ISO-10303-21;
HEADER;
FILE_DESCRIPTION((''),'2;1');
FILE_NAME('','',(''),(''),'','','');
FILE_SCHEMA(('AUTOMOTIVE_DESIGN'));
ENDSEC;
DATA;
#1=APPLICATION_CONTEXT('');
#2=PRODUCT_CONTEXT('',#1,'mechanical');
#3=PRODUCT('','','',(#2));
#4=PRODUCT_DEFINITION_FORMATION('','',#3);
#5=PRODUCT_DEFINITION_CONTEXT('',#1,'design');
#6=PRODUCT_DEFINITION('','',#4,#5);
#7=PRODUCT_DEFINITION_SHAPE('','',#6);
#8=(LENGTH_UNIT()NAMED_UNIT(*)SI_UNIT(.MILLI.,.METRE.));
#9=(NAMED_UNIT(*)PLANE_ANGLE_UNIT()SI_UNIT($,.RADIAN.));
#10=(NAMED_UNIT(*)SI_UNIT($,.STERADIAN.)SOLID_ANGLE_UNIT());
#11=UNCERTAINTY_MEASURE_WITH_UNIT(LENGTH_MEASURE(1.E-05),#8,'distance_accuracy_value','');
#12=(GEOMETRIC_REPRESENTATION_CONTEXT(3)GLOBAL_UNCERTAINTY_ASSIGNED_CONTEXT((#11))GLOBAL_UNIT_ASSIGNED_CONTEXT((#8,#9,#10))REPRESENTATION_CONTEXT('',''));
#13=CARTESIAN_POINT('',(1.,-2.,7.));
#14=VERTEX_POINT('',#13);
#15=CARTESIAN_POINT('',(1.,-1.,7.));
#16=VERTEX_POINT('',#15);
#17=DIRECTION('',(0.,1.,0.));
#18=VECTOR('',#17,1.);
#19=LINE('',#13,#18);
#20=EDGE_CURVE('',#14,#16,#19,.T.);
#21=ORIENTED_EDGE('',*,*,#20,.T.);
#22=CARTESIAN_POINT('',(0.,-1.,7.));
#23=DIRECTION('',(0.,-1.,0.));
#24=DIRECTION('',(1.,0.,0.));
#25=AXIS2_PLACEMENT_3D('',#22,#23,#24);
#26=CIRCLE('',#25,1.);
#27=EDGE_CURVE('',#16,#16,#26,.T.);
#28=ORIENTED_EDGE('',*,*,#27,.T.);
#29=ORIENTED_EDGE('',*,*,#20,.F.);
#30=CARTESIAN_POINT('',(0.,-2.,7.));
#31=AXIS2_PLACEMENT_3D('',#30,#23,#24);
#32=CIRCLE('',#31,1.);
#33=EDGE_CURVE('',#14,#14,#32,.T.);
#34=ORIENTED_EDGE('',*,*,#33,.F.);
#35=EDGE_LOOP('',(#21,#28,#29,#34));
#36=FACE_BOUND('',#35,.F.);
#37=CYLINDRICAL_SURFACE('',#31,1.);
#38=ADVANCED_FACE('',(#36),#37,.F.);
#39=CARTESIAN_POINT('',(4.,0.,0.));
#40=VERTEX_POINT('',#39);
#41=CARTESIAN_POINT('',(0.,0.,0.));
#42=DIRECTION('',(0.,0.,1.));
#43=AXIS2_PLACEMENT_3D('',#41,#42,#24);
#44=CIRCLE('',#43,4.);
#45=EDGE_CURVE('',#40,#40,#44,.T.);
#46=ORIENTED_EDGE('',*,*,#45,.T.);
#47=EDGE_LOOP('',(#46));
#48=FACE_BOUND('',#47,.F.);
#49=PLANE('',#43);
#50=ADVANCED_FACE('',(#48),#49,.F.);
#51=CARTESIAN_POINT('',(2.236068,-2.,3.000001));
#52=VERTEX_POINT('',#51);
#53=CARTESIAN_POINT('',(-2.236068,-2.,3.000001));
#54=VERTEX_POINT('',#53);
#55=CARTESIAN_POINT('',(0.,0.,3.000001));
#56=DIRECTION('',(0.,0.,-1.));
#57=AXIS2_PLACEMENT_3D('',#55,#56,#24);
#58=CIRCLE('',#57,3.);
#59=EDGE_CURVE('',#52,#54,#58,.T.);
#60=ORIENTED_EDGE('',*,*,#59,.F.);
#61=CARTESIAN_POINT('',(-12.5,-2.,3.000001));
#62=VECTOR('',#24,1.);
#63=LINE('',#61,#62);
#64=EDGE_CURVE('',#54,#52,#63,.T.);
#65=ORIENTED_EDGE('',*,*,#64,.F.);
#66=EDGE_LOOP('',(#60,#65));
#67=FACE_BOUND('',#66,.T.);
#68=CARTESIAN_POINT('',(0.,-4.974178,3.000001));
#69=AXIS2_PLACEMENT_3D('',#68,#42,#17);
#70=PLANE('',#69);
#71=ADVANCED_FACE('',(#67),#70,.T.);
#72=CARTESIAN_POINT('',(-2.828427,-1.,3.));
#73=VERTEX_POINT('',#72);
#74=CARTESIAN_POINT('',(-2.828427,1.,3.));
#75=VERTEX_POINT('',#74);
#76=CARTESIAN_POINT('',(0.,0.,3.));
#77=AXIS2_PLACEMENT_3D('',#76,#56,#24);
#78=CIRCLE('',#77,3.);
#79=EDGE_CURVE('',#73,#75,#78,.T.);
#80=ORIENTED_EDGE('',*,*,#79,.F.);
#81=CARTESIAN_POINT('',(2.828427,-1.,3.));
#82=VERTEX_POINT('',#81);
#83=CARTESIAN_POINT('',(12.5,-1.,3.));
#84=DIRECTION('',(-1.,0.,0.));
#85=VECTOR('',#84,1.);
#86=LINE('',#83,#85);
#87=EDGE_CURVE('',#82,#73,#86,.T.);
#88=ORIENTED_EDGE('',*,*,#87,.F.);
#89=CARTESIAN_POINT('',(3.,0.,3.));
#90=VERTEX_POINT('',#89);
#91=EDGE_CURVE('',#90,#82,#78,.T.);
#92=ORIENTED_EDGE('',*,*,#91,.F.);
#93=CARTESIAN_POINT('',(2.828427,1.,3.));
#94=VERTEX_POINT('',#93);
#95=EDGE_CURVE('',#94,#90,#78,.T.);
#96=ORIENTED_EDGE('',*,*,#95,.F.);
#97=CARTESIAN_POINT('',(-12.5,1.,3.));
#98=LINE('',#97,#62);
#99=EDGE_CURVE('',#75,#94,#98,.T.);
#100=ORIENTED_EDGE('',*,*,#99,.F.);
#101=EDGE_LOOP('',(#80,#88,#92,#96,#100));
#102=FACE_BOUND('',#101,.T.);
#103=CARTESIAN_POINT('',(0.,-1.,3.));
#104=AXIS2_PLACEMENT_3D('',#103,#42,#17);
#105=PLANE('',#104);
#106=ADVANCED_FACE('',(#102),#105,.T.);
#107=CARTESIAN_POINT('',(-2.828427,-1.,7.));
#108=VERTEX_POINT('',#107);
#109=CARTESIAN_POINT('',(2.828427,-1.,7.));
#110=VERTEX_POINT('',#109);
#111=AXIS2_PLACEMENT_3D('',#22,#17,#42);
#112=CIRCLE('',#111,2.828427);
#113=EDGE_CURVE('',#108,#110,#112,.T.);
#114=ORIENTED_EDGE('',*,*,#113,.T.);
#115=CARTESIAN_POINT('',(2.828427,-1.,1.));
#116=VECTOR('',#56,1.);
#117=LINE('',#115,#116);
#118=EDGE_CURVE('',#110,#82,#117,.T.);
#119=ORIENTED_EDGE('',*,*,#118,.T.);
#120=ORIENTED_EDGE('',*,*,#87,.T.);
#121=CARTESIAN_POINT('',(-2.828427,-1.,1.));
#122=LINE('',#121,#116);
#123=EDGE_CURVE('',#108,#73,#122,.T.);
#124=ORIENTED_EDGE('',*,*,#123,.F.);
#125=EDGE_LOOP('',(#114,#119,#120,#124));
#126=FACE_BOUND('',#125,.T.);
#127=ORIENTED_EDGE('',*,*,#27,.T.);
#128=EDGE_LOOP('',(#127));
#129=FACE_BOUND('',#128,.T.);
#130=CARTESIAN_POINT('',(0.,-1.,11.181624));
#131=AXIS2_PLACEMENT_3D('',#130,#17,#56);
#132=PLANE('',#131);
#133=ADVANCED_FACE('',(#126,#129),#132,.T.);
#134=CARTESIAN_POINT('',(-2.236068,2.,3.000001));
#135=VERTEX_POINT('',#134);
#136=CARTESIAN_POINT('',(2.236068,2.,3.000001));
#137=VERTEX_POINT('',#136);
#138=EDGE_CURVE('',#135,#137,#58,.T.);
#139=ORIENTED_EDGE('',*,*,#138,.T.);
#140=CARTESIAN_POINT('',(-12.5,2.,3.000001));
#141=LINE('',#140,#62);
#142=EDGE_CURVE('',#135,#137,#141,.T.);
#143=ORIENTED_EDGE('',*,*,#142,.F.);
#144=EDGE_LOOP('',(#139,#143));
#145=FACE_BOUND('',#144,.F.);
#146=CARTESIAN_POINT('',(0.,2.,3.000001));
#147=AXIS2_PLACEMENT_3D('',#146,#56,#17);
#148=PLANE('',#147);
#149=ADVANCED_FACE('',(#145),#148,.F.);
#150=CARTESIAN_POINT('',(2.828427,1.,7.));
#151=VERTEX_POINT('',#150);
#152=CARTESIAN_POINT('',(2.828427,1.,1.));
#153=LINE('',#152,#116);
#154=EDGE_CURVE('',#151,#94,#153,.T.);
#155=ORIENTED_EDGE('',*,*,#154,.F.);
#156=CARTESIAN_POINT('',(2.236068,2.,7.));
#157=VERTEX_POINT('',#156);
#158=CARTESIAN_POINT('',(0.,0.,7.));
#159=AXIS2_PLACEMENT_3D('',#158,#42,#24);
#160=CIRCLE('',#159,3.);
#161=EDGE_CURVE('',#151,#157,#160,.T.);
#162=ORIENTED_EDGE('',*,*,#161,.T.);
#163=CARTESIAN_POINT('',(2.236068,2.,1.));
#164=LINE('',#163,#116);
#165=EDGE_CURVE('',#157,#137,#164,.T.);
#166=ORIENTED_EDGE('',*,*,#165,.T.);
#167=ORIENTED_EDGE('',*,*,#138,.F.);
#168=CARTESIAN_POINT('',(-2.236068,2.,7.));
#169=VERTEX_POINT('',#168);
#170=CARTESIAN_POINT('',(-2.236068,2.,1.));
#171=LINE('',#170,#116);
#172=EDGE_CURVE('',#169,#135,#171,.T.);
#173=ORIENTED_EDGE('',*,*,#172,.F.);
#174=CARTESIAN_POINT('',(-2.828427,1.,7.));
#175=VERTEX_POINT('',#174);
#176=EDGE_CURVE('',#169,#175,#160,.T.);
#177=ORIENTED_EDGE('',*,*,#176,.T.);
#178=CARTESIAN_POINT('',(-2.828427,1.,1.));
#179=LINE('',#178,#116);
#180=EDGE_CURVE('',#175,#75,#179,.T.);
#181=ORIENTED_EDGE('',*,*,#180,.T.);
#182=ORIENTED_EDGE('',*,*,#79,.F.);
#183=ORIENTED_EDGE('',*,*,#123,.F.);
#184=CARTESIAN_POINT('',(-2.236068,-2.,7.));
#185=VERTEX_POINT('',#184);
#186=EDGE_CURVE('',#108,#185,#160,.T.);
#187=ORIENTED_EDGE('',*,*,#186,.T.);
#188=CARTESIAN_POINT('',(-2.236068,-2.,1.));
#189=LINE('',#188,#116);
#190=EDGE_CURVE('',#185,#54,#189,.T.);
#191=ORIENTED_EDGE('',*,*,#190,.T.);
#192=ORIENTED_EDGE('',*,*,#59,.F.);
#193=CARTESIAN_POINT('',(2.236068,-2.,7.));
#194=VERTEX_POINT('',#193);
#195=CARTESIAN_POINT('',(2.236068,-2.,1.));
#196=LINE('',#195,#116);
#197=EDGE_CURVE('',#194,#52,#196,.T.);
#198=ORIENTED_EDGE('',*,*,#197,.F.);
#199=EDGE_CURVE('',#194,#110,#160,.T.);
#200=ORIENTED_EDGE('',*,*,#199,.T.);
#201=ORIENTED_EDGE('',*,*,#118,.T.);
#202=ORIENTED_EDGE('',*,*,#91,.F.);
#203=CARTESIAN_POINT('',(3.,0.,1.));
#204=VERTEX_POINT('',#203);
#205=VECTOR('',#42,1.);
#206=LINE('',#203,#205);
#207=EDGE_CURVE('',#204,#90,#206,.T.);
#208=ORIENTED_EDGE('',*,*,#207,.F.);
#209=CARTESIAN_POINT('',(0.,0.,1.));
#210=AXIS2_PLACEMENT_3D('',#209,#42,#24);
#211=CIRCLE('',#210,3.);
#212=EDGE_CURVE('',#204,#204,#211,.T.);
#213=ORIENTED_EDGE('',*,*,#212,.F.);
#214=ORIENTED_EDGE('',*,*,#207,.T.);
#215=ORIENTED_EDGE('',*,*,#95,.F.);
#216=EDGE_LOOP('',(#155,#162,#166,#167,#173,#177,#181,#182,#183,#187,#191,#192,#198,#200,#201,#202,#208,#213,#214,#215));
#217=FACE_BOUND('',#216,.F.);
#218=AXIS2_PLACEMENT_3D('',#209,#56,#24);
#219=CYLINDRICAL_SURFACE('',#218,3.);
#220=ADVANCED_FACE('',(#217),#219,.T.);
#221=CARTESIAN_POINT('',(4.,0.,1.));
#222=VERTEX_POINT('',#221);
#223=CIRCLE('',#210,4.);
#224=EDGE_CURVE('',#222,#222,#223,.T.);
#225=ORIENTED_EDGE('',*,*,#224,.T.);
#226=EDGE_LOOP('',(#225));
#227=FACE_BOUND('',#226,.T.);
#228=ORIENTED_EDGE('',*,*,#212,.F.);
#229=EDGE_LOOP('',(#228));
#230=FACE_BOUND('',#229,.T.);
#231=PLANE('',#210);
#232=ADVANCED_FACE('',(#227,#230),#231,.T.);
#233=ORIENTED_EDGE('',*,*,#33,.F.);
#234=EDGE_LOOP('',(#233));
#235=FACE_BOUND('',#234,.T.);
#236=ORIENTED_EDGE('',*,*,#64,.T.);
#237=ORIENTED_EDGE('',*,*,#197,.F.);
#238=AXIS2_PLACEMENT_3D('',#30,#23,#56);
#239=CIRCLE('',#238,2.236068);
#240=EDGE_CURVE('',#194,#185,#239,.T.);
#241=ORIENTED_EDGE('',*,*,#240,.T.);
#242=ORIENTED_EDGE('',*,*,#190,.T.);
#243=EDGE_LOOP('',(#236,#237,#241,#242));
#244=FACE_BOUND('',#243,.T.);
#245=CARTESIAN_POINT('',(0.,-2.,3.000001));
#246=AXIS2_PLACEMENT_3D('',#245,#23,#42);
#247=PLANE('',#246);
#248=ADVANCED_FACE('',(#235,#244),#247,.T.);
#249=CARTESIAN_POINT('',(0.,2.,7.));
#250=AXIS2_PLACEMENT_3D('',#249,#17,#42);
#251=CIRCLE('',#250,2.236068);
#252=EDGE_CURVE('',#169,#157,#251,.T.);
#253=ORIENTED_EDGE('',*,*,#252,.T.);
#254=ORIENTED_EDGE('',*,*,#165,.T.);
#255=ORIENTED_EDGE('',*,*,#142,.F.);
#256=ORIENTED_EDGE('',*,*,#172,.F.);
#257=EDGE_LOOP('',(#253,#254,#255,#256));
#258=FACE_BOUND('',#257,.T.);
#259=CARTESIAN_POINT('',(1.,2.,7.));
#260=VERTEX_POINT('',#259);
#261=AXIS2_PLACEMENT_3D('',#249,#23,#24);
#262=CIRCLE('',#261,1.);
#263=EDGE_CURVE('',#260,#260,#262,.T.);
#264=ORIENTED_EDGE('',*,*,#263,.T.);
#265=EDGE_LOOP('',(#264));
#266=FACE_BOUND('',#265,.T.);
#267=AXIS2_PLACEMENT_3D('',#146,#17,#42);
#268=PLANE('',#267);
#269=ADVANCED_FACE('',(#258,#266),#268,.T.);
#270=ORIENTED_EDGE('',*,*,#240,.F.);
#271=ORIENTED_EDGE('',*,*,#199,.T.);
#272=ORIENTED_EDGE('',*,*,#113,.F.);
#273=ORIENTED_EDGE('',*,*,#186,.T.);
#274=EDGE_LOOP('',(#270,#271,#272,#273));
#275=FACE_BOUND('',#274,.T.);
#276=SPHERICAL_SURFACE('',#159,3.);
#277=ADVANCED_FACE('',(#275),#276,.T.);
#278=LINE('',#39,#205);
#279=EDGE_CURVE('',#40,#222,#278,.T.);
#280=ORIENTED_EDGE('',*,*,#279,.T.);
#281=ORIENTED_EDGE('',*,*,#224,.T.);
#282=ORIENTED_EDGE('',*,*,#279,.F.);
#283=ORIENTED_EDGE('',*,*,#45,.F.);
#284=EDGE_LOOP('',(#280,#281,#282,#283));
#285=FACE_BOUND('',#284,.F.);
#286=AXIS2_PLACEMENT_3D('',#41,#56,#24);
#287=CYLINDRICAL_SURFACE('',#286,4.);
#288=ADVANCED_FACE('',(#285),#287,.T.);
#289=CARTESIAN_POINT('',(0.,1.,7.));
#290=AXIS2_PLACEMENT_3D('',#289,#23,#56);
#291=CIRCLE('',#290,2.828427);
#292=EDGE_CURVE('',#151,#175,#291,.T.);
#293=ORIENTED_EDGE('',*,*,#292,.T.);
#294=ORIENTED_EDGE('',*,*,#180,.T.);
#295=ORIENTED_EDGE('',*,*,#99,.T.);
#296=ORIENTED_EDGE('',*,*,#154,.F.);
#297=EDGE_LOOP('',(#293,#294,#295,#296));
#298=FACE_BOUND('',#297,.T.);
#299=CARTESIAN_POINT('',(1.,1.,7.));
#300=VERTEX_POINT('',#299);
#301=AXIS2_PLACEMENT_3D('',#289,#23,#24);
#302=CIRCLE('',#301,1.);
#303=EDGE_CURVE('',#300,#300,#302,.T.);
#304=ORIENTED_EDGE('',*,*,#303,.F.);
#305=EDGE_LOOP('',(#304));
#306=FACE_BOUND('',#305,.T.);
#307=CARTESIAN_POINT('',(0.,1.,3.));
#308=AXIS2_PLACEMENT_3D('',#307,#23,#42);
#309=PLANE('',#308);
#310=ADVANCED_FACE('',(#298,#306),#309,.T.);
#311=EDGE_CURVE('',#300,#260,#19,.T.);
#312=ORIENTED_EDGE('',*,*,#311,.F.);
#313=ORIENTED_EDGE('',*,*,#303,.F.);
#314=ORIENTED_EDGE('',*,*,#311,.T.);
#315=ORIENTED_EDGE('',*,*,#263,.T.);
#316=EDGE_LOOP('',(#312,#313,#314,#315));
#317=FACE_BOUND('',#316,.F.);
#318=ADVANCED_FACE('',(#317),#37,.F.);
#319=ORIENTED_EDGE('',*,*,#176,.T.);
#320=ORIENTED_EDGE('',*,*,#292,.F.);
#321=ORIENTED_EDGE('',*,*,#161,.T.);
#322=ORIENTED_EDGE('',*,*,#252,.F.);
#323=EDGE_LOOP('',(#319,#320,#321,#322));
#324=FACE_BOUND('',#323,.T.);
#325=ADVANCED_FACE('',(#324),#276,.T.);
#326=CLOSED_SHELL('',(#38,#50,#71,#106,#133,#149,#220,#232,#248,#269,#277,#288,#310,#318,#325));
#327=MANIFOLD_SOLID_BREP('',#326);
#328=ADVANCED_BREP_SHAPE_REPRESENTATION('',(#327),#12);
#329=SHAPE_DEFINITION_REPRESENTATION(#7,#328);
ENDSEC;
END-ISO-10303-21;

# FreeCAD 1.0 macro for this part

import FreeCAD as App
import Part
import Sketcher
from FreeCAD import Vector
Q = App.Units.Quantity


def edges_at(feature, points):
    """Names of the edges that pass closest to the given points."""
    edges = feature.Shape.Edges
    near = lambda p: min(range(len(edges)), key=lambda i: edges[i].distToShape(Part.Vertex(*p))[0])
    return sorted({f"Edge{near(p) + 1}" for p in points})


def add_polygon(sketch, points):
    """Adds a closed chain of lines whose ends are joined by coincident constraints."""
    first, n = sketch.GeometryCount, len(points)
    for a, b in zip(points, points[1:] + points[:1]):
        sketch.addGeometry(Part.LineSegment(App.Vector(*a, 0), App.Vector(*b, 0)), False)
    for i in range(n):
        sketch.addConstraint(Sketcher.Constraint("Coincident", first + i, 2, first + (i + 1) % n, 1))

doc = App.newDocument("Part")
params = doc.addObject("Spreadsheet::Sheet", "Params")
for row, (alias, value) in enumerate([
    ("sketch1_diameter", "8 mm"),
    ("pad1_length", "1 mm"),
    ("sketch2_diameter", "6 mm"),
    ("pad2_length", "9 mm"),
    ("fillet_radius", "3 mm"),
    ("sketch3_width", "2 mm"),
    ("pocket1_length", "25 mm"),
    ("sketch4_diameter", "2 mm"),
], start=1):
    params.set(f"A{row}", alias)
    params.set(f"B{row}", "=" + value)
    params.setAlias(f"B{row}", alias)

body = doc.addObject("PartDesign::Body", "Body")

# Sketch on XY plane
sketch1 = body.newObject("Sketcher::SketchObject", "Sketch")
sketch1.AttachmentSupport = (doc.getObject("XY_Plane"), [""])
sketch1.MapMode = "FlatFace"
sketch1.addGeometry(Part.Circle(Vector(0, 0, 0), Vector(0, 0, 1), 4), False)
sketch1.addConstraint([
    Sketcher.Constraint("Coincident", 0, 3, -1, 1),
    Sketcher.Constraint("Diameter", 0, Q("8 mm")),
])
sketch1.setExpression("Constraints[1]", "Params.sketch1_diameter")
pad1 = body.newObject("PartDesign::Pad", "Pad")
pad1.Profile = sketch1
pad1.setExpression("Length", "Params.pad1_length")

# Sketch on XY plane
sketch2 = body.newObject("Sketcher::SketchObject", "Sketch001")
sketch2.AttachmentSupport = (doc.getObject("XY_Plane"), [""])
sketch2.MapMode = "FlatFace"
sketch2.AttachmentOffset = App.Placement(Vector(0, 0, 1), App.Rotation())
sketch2.addGeometry(Part.Circle(Vector(0, 0, 0), Vector(0, 0, 1), 3), False)
sketch2.addConstraint([
    Sketcher.Constraint("Coincident", 0, 3, -1, 1),
    Sketcher.Constraint("Diameter", 0, Q("6 mm")),
])
sketch2.setExpression("Constraints[1]", "Params.sketch2_diameter")
pad2 = body.newObject("PartDesign::Pad", "Pad001")
pad2.Profile = sketch2
pad2.setExpression("Length", "Params.pad2_length")
doc.recompute()

fillet = body.newObject("PartDesign::Fillet", "Fillet")
fillet.Base = (pad2, edges_at(pad2, [(-3, 0, 10)]))
fillet.setExpression("Radius", "Params.fillet_radius")

# Sketch on YZ plane
sketch3 = body.newObject("Sketcher::SketchObject", "Sketch002")
sketch3.AttachmentSupport = (doc.getObject("YZ_Plane"), [""])
sketch3.MapMode = "FlatFace"
add_polygon(sketch3, [(-1, 3), (1, 3), (1, 11.2), (-1, 11.2)])  # lines 0-3
add_polygon(sketch3, [(-5, 11.2), (-5, 3), (-2, 3), (-2, 11.2)])  # lines 4-7
add_polygon(sketch3, [(2, 11.2), (2, 3), (5, 3), (5, 11.2)])  # lines 8-11
sketch3.addConstraint([
    Sketcher.Constraint("Horizontal", 0),
    Sketcher.Constraint("Vertical", 1),
    Sketcher.Constraint("Horizontal", 2),
    Sketcher.Constraint("Vertical", 3),
    Sketcher.Constraint("Vertical", 4),
    Sketcher.Constraint("Horizontal", 5),
    Sketcher.Constraint("Vertical", 6),
    Sketcher.Constraint("Horizontal", 7),
    Sketcher.Constraint("Vertical", 8),
    Sketcher.Constraint("Horizontal", 9),
    Sketcher.Constraint("Vertical", 10),
    Sketcher.Constraint("Horizontal", 11),
    Sketcher.Constraint("Symmetric", 5, 2, 8, 2, -2),
    Sketcher.Constraint("Symmetric", 7, 2, 10, 2, -2),
    Sketcher.Constraint("Horizontal", 3, 2, 4, 2),
    Sketcher.Constraint("DistanceX", 0, 1, 0, 2, Q("2 mm")),
    Sketcher.Constraint("DistanceX", -1, 1, 0, 2, Q("1 mm")),
    Sketcher.Constraint("DistanceY", -1, 1, 0, 2, Q("3 mm")),
    Sketcher.Constraint("DistanceX", 5, 2, -1, 1, Q("2 mm")),
    Sketcher.Constraint("DistanceX", 5, 1, 5, 2, Q("2.974178 mm")),
    Sketcher.Constraint("DistanceY", 1, 1, 1, 2, Q("8.181624 mm")),
    Sketcher.Constraint("DistanceY", 4, 2, 4, 1, Q("8.153107 mm")),
])
sketch3.setExpression("Constraints[27]", "Params.sketch3_width")
pocket1 = body.newObject("PartDesign::Pocket", "Pocket")
pocket1.Profile = sketch3
pocket1.setExpression("Length", "Params.pocket1_length")
pocket1.Midplane = True

# Sketch on XZ plane
sketch4 = body.newObject("Sketcher::SketchObject", "Sketch003")
sketch4.AttachmentSupport = (doc.getObject("XZ_Plane"), [""])
sketch4.MapMode = "FlatFace"
sketch4.AttachmentOffset = App.Placement(Vector(0, 0, 2), App.Rotation())
sketch4.addGeometry(Part.Circle(Vector(0, 7, 0), Vector(0, 0, 1), 1), False)
sketch4.addConstraint([
    Sketcher.Constraint("PointOnObject", 0, 3, -2),
    Sketcher.Constraint("Diameter", 0, Q("2 mm")),
    Sketcher.Constraint("DistanceY", -1, 1, 0, 3, Q("7 mm")),
])
sketch4.setExpression("Constraints[1]", "Params.sketch4_diameter")
pocket2 = body.newObject("PartDesign::Pocket", "Pocket001")
pocket2.Profile = sketch4
pocket2.Type = "ThroughAll"

doc.recompute()
